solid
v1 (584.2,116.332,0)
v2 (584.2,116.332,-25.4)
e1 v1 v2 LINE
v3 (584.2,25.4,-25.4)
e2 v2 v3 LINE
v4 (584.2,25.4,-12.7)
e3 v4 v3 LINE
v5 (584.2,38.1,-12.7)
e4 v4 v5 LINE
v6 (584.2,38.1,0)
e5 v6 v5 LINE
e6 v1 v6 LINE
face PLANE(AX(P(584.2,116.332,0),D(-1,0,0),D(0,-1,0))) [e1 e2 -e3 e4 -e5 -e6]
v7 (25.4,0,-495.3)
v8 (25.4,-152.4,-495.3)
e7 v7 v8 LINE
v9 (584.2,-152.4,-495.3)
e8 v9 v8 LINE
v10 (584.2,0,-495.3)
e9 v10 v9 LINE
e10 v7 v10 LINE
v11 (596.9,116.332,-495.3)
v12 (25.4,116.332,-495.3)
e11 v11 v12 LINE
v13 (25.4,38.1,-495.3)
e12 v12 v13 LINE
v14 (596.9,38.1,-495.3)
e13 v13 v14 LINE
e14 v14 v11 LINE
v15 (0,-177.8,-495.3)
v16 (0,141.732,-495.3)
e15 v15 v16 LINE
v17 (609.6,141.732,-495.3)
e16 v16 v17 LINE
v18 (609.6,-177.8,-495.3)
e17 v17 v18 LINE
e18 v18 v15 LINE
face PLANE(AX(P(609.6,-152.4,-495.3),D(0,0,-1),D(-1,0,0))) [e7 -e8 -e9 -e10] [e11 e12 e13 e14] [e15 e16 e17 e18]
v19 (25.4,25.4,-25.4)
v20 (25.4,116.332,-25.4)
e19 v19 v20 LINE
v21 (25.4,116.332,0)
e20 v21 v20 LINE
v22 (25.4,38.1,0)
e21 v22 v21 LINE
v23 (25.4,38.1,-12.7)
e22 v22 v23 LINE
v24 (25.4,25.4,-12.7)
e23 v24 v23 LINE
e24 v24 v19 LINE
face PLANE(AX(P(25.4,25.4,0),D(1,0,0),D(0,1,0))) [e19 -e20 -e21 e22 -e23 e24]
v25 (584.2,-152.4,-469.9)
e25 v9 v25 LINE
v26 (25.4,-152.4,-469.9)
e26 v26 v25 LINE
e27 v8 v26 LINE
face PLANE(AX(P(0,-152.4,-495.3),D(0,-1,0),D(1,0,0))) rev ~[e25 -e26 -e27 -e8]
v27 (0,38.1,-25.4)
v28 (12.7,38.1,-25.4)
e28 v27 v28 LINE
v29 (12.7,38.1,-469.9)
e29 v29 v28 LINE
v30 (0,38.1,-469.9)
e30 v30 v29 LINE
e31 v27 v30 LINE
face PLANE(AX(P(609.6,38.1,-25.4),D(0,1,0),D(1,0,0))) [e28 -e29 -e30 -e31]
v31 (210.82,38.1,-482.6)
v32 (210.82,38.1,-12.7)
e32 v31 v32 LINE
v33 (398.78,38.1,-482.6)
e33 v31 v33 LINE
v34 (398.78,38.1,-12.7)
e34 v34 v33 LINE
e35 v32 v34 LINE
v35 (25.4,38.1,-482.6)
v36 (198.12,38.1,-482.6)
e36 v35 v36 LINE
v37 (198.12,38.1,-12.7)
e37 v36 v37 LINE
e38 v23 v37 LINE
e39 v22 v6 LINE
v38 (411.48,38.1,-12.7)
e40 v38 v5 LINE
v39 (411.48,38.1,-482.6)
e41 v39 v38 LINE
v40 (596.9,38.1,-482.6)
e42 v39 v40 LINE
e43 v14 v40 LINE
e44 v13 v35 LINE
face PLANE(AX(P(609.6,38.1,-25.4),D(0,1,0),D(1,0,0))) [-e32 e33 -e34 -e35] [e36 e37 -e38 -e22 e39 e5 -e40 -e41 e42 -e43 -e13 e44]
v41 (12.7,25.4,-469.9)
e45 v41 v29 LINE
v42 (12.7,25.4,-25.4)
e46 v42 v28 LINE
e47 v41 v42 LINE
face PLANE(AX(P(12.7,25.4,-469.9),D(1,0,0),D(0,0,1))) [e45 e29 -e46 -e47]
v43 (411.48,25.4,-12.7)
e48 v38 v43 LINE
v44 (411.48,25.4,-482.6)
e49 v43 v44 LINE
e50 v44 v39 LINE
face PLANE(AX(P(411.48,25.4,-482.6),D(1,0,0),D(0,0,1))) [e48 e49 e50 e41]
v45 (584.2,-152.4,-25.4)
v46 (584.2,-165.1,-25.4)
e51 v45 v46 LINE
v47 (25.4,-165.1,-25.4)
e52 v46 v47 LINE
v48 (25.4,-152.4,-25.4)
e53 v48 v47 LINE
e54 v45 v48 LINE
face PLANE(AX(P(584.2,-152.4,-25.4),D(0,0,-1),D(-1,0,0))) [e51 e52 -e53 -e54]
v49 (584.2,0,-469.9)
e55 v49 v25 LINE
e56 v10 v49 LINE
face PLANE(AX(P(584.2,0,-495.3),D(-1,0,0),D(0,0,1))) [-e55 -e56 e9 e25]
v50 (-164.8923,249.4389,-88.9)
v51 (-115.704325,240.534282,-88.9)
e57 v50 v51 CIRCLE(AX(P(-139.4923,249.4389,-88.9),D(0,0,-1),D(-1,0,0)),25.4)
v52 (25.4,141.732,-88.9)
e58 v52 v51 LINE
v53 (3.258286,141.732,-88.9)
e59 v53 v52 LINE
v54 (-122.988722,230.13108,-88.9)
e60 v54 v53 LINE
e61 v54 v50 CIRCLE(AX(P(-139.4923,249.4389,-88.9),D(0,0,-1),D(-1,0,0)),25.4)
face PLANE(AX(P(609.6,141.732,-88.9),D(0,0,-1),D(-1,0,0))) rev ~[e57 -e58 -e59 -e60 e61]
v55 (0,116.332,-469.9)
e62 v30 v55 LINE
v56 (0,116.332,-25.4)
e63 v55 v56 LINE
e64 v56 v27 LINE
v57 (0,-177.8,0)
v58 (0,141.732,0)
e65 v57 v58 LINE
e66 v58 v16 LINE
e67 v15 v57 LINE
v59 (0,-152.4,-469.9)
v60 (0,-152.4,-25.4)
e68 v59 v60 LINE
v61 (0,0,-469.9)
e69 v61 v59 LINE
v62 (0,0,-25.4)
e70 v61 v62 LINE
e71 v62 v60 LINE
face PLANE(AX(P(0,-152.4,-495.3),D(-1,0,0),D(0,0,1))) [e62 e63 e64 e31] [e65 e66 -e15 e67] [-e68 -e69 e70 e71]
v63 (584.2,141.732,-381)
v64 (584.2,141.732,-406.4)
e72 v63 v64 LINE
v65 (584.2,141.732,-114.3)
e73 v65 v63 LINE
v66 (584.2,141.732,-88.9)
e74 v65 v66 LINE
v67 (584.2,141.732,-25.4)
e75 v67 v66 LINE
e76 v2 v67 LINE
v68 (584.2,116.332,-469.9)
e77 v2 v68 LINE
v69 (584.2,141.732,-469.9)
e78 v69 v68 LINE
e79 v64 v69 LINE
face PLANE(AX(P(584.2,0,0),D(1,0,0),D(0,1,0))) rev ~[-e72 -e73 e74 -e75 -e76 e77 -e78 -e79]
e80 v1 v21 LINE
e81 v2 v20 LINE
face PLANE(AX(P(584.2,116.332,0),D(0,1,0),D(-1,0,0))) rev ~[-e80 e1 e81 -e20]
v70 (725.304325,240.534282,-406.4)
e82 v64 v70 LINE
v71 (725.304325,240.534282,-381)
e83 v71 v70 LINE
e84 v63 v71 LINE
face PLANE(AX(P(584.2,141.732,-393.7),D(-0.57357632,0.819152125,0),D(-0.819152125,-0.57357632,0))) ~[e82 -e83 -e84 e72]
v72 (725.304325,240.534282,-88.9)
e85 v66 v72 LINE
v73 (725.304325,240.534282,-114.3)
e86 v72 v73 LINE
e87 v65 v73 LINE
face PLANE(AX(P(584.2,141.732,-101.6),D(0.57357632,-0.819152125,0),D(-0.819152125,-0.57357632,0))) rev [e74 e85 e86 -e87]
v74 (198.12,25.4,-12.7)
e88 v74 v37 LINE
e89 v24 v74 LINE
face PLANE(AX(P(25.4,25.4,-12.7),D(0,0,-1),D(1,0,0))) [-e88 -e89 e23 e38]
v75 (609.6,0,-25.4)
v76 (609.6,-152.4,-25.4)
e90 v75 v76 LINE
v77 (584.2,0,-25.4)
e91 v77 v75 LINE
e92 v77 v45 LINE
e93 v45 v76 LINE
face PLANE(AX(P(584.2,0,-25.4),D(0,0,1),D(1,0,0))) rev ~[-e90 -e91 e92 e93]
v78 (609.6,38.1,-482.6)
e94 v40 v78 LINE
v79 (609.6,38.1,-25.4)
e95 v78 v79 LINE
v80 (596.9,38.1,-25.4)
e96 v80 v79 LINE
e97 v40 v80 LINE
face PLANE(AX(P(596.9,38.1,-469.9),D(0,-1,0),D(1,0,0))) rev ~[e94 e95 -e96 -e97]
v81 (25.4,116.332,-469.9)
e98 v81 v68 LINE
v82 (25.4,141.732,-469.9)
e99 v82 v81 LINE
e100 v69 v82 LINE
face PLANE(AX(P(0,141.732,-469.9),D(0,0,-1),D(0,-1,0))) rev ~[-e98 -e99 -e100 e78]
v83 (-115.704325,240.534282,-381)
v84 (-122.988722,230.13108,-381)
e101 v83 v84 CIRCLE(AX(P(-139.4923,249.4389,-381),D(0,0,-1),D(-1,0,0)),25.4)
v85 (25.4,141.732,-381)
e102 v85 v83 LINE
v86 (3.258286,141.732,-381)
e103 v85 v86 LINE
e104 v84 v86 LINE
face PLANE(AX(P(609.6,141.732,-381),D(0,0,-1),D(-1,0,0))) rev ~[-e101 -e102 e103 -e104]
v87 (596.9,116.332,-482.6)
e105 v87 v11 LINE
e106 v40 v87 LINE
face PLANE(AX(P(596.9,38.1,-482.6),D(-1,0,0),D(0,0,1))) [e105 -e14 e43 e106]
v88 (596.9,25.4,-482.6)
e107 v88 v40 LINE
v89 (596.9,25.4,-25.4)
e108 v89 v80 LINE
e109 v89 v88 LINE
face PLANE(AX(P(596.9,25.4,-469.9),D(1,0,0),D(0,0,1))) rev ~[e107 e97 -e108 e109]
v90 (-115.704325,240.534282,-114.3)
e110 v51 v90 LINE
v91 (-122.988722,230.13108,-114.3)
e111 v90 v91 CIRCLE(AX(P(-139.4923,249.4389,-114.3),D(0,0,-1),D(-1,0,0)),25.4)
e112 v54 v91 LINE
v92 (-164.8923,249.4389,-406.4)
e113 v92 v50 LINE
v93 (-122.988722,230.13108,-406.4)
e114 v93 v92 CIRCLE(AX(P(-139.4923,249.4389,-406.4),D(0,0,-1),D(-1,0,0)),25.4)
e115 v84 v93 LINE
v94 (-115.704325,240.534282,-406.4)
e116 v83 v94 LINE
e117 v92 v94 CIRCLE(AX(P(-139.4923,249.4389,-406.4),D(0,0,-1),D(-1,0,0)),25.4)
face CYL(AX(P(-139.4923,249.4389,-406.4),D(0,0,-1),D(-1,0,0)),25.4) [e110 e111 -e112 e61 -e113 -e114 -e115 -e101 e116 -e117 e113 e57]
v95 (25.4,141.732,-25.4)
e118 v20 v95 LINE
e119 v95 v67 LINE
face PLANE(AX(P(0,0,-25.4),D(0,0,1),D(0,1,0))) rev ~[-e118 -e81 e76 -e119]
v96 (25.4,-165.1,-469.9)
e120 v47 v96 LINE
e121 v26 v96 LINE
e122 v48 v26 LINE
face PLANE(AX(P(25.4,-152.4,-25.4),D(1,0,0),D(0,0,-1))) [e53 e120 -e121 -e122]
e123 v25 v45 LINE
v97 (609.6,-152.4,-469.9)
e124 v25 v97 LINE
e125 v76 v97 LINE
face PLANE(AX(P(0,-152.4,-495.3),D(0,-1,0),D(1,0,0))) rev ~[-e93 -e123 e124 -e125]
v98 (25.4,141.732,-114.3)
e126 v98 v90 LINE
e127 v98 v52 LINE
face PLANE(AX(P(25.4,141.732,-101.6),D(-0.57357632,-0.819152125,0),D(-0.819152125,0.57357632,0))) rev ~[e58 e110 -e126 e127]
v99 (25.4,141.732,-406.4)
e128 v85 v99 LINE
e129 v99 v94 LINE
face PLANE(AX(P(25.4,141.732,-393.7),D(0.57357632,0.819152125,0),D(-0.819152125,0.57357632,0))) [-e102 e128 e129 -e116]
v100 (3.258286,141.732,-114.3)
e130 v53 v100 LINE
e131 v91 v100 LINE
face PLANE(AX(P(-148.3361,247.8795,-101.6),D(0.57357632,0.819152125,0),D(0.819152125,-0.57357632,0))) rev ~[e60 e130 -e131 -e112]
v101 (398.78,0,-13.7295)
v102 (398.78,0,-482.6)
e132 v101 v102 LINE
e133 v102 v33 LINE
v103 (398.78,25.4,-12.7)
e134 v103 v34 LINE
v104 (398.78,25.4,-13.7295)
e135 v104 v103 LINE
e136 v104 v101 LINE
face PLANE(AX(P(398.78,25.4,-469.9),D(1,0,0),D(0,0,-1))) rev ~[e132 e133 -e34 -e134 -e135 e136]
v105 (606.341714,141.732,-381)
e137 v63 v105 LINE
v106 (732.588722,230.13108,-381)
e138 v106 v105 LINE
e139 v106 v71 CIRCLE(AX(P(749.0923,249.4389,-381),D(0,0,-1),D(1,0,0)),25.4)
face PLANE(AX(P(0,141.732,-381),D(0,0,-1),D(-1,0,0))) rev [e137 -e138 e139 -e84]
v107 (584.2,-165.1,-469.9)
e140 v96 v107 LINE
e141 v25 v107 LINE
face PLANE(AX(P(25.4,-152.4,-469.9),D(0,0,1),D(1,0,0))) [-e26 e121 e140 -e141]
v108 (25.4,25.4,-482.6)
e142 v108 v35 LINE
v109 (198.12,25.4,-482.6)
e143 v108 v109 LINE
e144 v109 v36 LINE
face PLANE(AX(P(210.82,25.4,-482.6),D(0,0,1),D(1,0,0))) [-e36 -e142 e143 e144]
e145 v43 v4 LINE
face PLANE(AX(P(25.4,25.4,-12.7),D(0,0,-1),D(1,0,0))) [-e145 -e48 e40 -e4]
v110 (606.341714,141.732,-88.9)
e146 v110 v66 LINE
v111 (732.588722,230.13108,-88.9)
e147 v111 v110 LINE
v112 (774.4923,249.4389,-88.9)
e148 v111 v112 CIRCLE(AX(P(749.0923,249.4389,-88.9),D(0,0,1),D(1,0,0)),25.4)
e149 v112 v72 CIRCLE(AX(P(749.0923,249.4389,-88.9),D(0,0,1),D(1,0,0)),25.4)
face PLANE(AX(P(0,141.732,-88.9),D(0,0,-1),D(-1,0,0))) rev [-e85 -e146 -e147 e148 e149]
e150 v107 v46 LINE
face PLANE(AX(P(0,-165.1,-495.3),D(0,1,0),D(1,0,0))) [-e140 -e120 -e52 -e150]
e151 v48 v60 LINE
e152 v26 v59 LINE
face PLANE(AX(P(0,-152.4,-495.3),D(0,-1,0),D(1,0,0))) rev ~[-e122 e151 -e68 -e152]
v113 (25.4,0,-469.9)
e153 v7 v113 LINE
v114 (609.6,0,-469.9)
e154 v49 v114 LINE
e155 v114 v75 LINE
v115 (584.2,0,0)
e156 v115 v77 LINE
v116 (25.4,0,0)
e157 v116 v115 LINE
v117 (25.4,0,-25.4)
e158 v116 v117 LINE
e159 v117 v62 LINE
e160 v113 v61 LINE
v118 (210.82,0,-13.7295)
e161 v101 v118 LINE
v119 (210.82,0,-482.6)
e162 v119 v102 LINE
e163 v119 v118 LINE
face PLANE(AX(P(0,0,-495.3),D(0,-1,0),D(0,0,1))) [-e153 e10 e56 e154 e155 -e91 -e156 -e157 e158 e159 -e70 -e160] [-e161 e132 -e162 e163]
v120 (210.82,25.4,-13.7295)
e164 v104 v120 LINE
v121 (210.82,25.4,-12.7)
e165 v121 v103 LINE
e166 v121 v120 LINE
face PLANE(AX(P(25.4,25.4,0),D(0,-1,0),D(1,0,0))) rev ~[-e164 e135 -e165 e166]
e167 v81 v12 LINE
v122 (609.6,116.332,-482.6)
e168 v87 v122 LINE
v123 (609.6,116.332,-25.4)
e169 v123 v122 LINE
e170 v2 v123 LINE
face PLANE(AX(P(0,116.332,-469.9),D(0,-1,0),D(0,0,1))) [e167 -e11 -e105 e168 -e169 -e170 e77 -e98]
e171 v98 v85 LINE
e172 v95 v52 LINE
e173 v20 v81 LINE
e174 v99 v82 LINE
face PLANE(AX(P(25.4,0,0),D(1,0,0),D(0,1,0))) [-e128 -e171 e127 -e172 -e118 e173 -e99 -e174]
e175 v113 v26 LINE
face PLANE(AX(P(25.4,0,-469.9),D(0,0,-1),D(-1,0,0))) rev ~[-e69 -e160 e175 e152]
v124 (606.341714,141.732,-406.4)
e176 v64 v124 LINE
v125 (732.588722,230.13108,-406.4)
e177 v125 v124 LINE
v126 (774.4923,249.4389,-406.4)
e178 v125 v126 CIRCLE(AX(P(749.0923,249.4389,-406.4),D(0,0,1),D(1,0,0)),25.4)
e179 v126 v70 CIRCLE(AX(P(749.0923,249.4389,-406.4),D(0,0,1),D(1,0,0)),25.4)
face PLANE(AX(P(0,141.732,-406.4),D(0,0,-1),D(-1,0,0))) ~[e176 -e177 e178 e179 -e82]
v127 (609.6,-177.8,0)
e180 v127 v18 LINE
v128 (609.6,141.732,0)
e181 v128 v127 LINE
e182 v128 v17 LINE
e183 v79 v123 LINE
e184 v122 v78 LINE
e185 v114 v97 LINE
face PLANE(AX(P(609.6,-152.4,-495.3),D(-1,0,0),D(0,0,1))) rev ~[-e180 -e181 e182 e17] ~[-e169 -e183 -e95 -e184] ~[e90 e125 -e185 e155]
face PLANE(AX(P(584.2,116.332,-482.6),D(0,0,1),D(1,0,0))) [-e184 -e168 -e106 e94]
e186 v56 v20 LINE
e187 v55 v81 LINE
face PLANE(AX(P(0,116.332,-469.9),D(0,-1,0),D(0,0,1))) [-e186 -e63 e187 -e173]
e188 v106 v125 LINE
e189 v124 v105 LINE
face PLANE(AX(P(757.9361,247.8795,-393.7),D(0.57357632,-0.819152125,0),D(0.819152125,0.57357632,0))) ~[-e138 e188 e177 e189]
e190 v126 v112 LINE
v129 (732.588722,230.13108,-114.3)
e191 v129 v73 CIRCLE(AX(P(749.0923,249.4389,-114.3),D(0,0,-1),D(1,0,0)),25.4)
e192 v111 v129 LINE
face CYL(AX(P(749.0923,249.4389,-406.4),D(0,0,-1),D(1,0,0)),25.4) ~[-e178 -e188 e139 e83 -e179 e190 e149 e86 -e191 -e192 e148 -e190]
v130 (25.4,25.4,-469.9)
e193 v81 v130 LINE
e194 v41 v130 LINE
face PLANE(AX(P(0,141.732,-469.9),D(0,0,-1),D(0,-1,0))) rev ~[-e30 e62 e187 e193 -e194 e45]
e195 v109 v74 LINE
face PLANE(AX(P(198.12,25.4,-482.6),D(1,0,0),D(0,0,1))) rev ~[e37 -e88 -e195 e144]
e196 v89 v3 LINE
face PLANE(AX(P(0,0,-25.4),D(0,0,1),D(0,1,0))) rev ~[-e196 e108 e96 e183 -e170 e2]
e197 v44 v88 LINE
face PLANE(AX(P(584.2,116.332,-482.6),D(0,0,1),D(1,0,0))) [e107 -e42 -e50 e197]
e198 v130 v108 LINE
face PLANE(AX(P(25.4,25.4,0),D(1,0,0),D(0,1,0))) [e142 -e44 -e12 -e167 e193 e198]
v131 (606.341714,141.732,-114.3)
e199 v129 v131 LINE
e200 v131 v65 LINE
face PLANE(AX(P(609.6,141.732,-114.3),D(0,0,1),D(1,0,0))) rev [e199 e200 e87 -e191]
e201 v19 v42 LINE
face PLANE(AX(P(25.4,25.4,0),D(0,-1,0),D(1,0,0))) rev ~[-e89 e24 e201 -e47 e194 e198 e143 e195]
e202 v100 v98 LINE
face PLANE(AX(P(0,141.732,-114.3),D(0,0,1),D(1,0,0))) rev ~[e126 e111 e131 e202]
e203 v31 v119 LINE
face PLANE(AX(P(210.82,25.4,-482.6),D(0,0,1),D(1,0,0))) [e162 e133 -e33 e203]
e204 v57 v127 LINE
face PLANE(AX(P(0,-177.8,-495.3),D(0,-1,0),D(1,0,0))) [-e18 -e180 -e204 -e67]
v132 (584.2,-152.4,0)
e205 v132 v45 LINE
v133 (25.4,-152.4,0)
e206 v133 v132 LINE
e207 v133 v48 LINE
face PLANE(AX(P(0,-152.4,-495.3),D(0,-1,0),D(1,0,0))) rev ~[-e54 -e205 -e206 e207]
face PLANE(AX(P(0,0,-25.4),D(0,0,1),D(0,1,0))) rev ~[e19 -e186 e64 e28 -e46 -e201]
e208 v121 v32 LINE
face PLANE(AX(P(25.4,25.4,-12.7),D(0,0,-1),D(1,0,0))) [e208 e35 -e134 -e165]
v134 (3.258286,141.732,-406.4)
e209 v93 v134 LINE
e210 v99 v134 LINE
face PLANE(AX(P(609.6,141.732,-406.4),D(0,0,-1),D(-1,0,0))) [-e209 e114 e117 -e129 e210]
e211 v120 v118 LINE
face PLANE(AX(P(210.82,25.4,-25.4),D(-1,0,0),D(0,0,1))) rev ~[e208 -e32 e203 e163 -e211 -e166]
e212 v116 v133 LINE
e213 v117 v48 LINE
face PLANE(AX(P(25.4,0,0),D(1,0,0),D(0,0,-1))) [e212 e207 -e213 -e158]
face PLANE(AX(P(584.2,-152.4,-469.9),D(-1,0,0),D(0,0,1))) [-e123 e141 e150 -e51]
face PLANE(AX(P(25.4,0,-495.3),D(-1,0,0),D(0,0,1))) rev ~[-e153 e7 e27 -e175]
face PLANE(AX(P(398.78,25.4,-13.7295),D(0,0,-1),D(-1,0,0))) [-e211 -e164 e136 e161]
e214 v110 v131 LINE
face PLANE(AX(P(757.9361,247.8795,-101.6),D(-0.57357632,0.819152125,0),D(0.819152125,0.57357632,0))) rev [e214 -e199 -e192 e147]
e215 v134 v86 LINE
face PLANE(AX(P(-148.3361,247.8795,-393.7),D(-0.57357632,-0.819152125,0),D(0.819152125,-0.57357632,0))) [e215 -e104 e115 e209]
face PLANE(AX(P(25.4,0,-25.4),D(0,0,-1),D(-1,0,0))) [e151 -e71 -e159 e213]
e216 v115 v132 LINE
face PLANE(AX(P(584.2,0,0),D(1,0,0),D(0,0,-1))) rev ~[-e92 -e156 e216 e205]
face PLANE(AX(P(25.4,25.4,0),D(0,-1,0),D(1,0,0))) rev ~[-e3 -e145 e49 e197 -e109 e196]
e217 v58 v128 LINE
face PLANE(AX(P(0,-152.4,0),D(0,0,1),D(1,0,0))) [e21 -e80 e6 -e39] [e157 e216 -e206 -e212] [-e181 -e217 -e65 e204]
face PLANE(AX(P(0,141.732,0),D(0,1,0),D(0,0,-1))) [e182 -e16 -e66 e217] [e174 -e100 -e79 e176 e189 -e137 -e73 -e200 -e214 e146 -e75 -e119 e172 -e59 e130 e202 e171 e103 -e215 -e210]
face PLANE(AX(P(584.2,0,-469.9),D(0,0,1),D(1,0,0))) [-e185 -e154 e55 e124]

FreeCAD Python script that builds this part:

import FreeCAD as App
import Part
import Sketcher

V = App.Vector
Q = App.Units.Quantity


def faces_at(feature, points):
    """Names of the faces that lie closest to the given points."""
    faces = feature.Shape.Faces
    near = lambda p: min(range(len(faces)), key=lambda i: faces[i].distToShape(Part.Vertex(*p))[0])
    return sorted({f"Face{near(p) + 1}" for p in points})

doc = App.newDocument("Part")
params = doc.addObject("Spreadsheet::Sheet", "Params")
for row, (alias, value) in enumerate([
    ("sketch1_height", "19.5 in"),
    ("sketch1_width", "5.58 in"),
    ("pad1_length", "24 in"),
    ("thickness_wall", "1 in"),
    ("sketch2_width", "3.58 in"),
    ("sketch2_height", "17.5 in"),
    ("sketch3_height", "3.58 in"),
    ("sketch3_width", "22 in"),
    ("sketch4_width", "22 in"),
    ("sketch4_width2", "24 in"),
    ("sketch4_height", "17.5 in"),
    ("sketch4_height2", "18.5 in"),
    ("pad2_length", "0.5 in"),
    ("sketch5_width", "1 in"),
    ("pad3_length", "6 in"),
    ("sketch6_width", "24 in"),
    ("sketch6_height", "19.5 in"),
    ("pad4_length", "1 in"),
    ("sketch7_width", "7.4 in"),
    ("pocket3_length", "1 in"),
    ("sketch8_width", "0.5 in"),
    ("sketch8_height", "18.5 in"),
    ("pad5_length", "0.5 in"),
    ("sketch9_width", "22 in"),
    ("sketch9_height", "17.5 in"),
    ("pocket4_length", "0.5 in"),
    ("sketch10_length", "8 in"),
    ("sketch10_length2", "0.5 in"),
    ("pad6_length", "1 in"),
    ("sketch11_length", "8 in"),
    ("sketch11_length2", "0.5 in"),
    ("pad7_length", "1 in"),
    ("sketch12_diameter", "2 in"),
    ("pad8_length", "12.5 in"),
    ("sketch13_width", "1 in"),
    ("sketch13_height", "3.08 in"),
    ("pocket5_length", "0.5 in"),
    ("sketch14_height", "0.5 in"),
    ("sketch14_width", "3.08 in"),
    ("pocket6_length", "0.5 in"),
], start=1):
    params.set(f"A{row}", alias)
    params.set(f"B{row}", "=" + value)
    params.setAlias(f"B{row}", alias)

body = doc.addObject("PartDesign::Body", "Body")

# Sketch on YZ plane
sketch1 = body.newObject("Sketcher::SketchObject", "Sketch")
sketch1.AttachmentSupport = (doc.getObject("YZ_Plane"), [""])
sketch1.MapMode = "FlatFace"
sketch1.addGeometry([
    Part.LineSegment(V(141.732, 0, 0), V(0, 0, 0)),
    Part.LineSegment(V(0, 0, 0), V(0, -495.3, 0)),
    Part.LineSegment(V(0, -495.3, 0), V(141.732, -495.3, 0)),
    Part.LineSegment(V(141.732, -495.3, 0), V(141.732, 0, 0)),
], False)
sketch1.addConstraint([
    Sketcher.Constraint("Coincident", 0, 2, 1, 1),
    Sketcher.Constraint("Coincident", 1, 2, 2, 1),
    Sketcher.Constraint("Coincident", 2, 2, 3, 1),
    Sketcher.Constraint("Coincident", 3, 2, 0, 1),
    Sketcher.Constraint("Horizontal", 0),
    Sketcher.Constraint("Vertical", 1),
    Sketcher.Constraint("Horizontal", 2),
    Sketcher.Constraint("Vertical", 3),
    Sketcher.Constraint("Coincident", 0, 2, -1, 1),
    Sketcher.Constraint("DistanceY", 1, 2, 1, 1, Q("19.5 in")),
    Sketcher.Constraint("DistanceX", 0, 2, 0, 1, Q("5.58 in")),
])
sketch1.setExpression("Constraints[9]", "Params.sketch1_height")
sketch1.setExpression("Constraints[10]", "Params.sketch1_width")
pad1 = body.newObject("PartDesign::Pad", "Pad")
pad1.Profile = sketch1
pad1.setExpression("Length", "Params.pad1_length")
doc.recompute()

thickness = body.newObject("PartDesign::Thickness", "Thickness")
thickness.Base = (pad1, faces_at(pad1, [(203.2, 141.732, -165.1)]))
thickness.setExpression("Value", "Params.thickness_wall")
thickness.Reversed = True
thickness.Join = "Intersection"

# Sketch on YZ plane
sketch2 = body.newObject("Sketcher::SketchObject", "Sketch001")
sketch2.AttachmentSupport = (doc.getObject("YZ_Plane"), [""])
sketch2.MapMode = "FlatFace"
sketch2.addGeometry([
    Part.LineSegment(V(25.4, -25.4, 0), V(116.332, -25.4, 0)),
    Part.LineSegment(V(116.332, -25.4, 0), V(116.332, -469.9, 0)),
    Part.LineSegment(V(116.332, -469.9, 0), V(25.4, -469.9, 0)),
    Part.LineSegment(V(25.4, -469.9, 0), V(25.4, -25.4, 0)),
], False)
sketch2.addConstraint([
    Sketcher.Constraint("Coincident", 0, 2, 1, 1),
    Sketcher.Constraint("Coincident", 1, 2, 2, 1),
    Sketcher.Constraint("Coincident", 2, 2, 3, 1),
    Sketcher.Constraint("Coincident", 3, 2, 0, 1),
    Sketcher.Constraint("Horizontal", 0),
    Sketcher.Constraint("Vertical", 1),
    Sketcher.Constraint("Horizontal", 2),
    Sketcher.Constraint("Vertical", 3),
    Sketcher.Constraint("DistanceX", 0, 1, 0, 2, Q("3.58 in")),
    Sketcher.Constraint("DistanceY", 1, 2, 1, 1, Q("17.5 in")),
    Sketcher.Constraint("DistanceY", 0, 2, -1, 1, Q("1 in")),
    Sketcher.Constraint("DistanceX", -1, 1, 2, 2, Q("1 in")),
])
sketch2.setExpression("Constraints[8]", "Params.sketch2_width")
sketch2.setExpression("Constraints[9]", "Params.sketch2_height")
pocket1 = body.newObject("PartDesign::Pocket", "Pocket")
pocket1.Profile = sketch2
pocket1.Type = "ThroughAll"
pocket1.Reversed = True

# Sketch on XY plane
sketch3 = body.newObject("Sketcher::SketchObject", "Sketch002")
sketch3.AttachmentSupport = (doc.getObject("XY_Plane"), [""])
sketch3.MapMode = "FlatFace"
sketch3.addGeometry([
    Part.LineSegment(V(25.4, 116.332, 0), V(25.4, 25.4, 0)),
    Part.LineSegment(V(25.4, 25.4, 0), V(584.2, 25.4, 0)),
    Part.LineSegment(V(584.2, 25.4, 0), V(584.2, 116.332, 0)),
    Part.LineSegment(V(584.2, 116.332, 0), V(25.4, 116.332, 0)),
], False)
sketch3.addConstraint([
    Sketcher.Constraint("Coincident", 0, 2, 1, 1),
    Sketcher.Constraint("Coincident", 1, 2, 2, 1),
    Sketcher.Constraint("Coincident", 2, 2, 3, 1),
    Sketcher.Constraint("Coincident", 3, 2, 0, 1),
    Sketcher.Constraint("Vertical", 0),
    Sketcher.Constraint("Horizontal", 1),
    Sketcher.Constraint("Vertical", 2),
    Sketcher.Constraint("Horizontal", 3),
    Sketcher.Constraint("DistanceY", 0, 2, 0, 1, Q("3.58 in")),
    Sketcher.Constraint("DistanceX", 1, 1, 1, 2, Q("22 in")),
    Sketcher.Constraint("DistanceX", -1, 1, 0, 2, Q("1 in")),
    Sketcher.Constraint("DistanceY", -1, 1, 0, 2, Q("1 in")),
])
sketch3.setExpression("Constraints[8]", "Params.sketch3_height")
sketch3.setExpression("Constraints[9]", "Params.sketch3_width")
pocket2 = body.newObject("PartDesign::Pocket", "Pocket001")
pocket2.Profile = sketch3
pocket2.Type = "ThroughAll"

# Sketch on XZ plane
sketch4 = body.newObject("Sketcher::SketchObject", "Sketch003")
sketch4.AttachmentSupport = (doc.getObject("XZ_Plane"), [""])
sketch4.MapMode = "FlatFace"
sketch4.AttachmentOffset = App.Placement(V(0, 0, -1 * 25.4), App.Rotation())
sketch4.addGeometry([
    Part.LineSegment(V(0, -25.4, 0), V(12.7, -25.4, 0)),  # 0
    Part.LineSegment(V(12.7, -25.4, 0), V(12.7, -469.9, 0)),  # 1
    Part.LineSegment(V(12.7, -469.9, 0), V(25.4, -469.9, 0)),  # 2
    Part.LineSegment(V(25.4, -469.9, 0), V(25.4, -482.6, 0)),  # 3
    Part.LineSegment(V(25.4, -482.6, 0), V(584.2, -482.6, 0)),  # 4
    Part.LineSegment(V(584.2, -482.6, 0), V(584.2, -469.9, 0)),  # 5
    Part.LineSegment(V(584.2, -469.9, 0), V(596.9, -469.9, 0)),  # 6
    Part.LineSegment(V(596.9, -469.9, 0), V(596.9, -25.4, 0)),  # 7
    Part.LineSegment(V(596.9, -25.4, 0), V(609.6, -25.4, 0)),  # 8
    Part.LineSegment(V(609.6, -25.4, 0), V(609.6, -495.3, 0)),  # 9
    Part.LineSegment(V(609.6, -495.3, 0), V(0, -495.3, 0)),  # 10
    Part.LineSegment(V(0, -495.3, 0), V(0, -25.4, 0)),  # 11
    Part.LineSegment(V(25.4, -12.7, 0), V(25.4, 0, 0)),  # 12
    Part.LineSegment(V(25.4, 0, 0), V(584.2, 0, 0)),  # 13
    Part.LineSegment(V(584.2, 0, 0), V(584.2, -12.7, 0)),  # 14
    Part.LineSegment(V(584.2, -12.7, 0), V(25.4, -12.7, 0)),  # 15
], False)
sketch4.addConstraint([
    Sketcher.Constraint("Coincident", 0, 2, 1, 1),
    Sketcher.Constraint("Coincident", 1, 2, 2, 1),
    Sketcher.Constraint("Coincident", 2, 2, 3, 1),
    Sketcher.Constraint("Coincident", 3, 2, 4, 1),
    Sketcher.Constraint("Coincident", 4, 2, 5, 1),
    Sketcher.Constraint("Coincident", 5, 2, 6, 1),
    Sketcher.Constraint("Coincident", 6, 2, 7, 1),
    Sketcher.Constraint("Coincident", 7, 2, 8, 1),
    Sketcher.Constraint("Coincident", 8, 2, 9, 1),
    Sketcher.Constraint("Coincident", 9, 2, 10, 1),
    Sketcher.Constraint("Coincident", 10, 2, 11, 1),
    Sketcher.Constraint("Coincident", 11, 2, 0, 1),
    Sketcher.Constraint("Coincident", 12, 2, 13, 1),
    Sketcher.Constraint("Coincident", 13, 2, 14, 1),
    Sketcher.Constraint("Coincident", 14, 2, 15, 1),
    Sketcher.Constraint("Coincident", 15, 2, 12, 1),
    Sketcher.Constraint("Horizontal", 0),
    Sketcher.Constraint("Vertical", 1),
    Sketcher.Constraint("Horizontal", 2),
    Sketcher.Constraint("Vertical", 3),
    Sketcher.Constraint("Horizontal", 4),
    Sketcher.Constraint("Vertical", 5),
    Sketcher.Constraint("Horizontal", 6),
    Sketcher.Constraint("Vertical", 7),
    Sketcher.Constraint("Horizontal", 8),
    Sketcher.Constraint("Vertical", 9),
    Sketcher.Constraint("Horizontal", 10),
    Sketcher.Constraint("Vertical", 11),
    Sketcher.Constraint("Vertical", 12),
    Sketcher.Constraint("Horizontal", 13),
    Sketcher.Constraint("Vertical", 14),
    Sketcher.Constraint("Horizontal", 15),
    Sketcher.Constraint("PointOnObject", 10, 2, -2),
    Sketcher.Constraint("PointOnObject", 12, 2, -1),
    Sketcher.Constraint("Horizontal", 2, 2, 5, 2),
    Sketcher.Constraint("Horizontal", 0, 2, 7, 2),
    Sketcher.Constraint("Vertical", 3, 2, 12, 2),
    Sketcher.Constraint("Vertical", 5, 2, 13, 2),
    Sketcher.Constraint("Equal", 0, 2),
    Sketcher.Constraint("Equal", 2, 6),
    Sketcher.Constraint("Equal", 6, 8),
    Sketcher.Constraint("Equal", 8, 3),
    Sketcher.Constraint("Equal", 5, 12),
    Sketcher.Constraint("DistanceX", 4, 1, 4, 2, Q("22 in")),
    Sketcher.Constraint("DistanceX", 10, 2, 10, 1, Q("24 in")),
    Sketcher.Constraint("DistanceY", 1, 2, 1, 1, Q("17.5 in")),
    Sketcher.Constraint("DistanceY", 9, 2, 9, 1, Q("18.5 in")),
    Sketcher.Constraint("DistanceY", 0, 2, -1, 1, Q("1 in")),
])
sketch4.setExpression("Constraints[43]", "Params.sketch4_width")
sketch4.setExpression("Constraints[44]", "Params.sketch4_width2")
sketch4.setExpression("Constraints[45]", "Params.sketch4_height")
sketch4.setExpression("Constraints[46]", "Params.sketch4_height2")
pad2 = body.newObject("PartDesign::Pad", "Pad001")
pad2.Profile = sketch4
pad2.setExpression("Length", "Params.pad2_length")
pad2.Reversed = True

# Sketch on XZ plane
sketch5 = body.newObject("Sketcher::SketchObject", "Sketch004")
sketch5.AttachmentSupport = (doc.getObject("XZ_Plane"), [""])
sketch5.MapMode = "FlatFace"
sketch5.addGeometry([
    Part.LineSegment(V(25.4, -495.3, 0), V(25.4, -469.9, 0)),  # 0
    Part.LineSegment(V(25.4, -469.9, 0), V(0, -469.9, 0)),  # 1
    Part.LineSegment(V(0, -469.9, 0), V(0, -495.3, 0)),  # 2
    Part.LineSegment(V(0, -495.3, 0), V(25.4, -495.3, 0)),  # 3
    Part.LineSegment(V(0, -25.4, 0), V(25.4, -25.4, 0)),  # 4
    Part.LineSegment(V(25.4, -25.4, 0), V(25.4, 0, 0)),  # 5
    Part.LineSegment(V(25.4, 0, 0), V(0, 0, 0)),  # 6
    Part.LineSegment(V(0, 0, 0), V(0, -25.4, 0)),  # 7
    Part.LineSegment(V(609.6, -495.3, 0), V(609.6, -469.9, 0)),  # 8
    Part.LineSegment(V(609.6, -469.9, 0), V(584.2, -469.9, 0)),  # 9
    Part.LineSegment(V(584.2, -469.9, 0), V(584.2, -495.3, 0)),  # 10
    Part.LineSegment(V(584.2, -495.3, 0), V(609.6, -495.3, 0)),  # 11
    Part.LineSegment(V(584.2, 0, 0), V(584.2, -25.4, 0)),  # 12
    Part.LineSegment(V(584.2, -25.4, 0), V(609.6, -25.4, 0)),  # 13
    Part.LineSegment(V(609.6, -25.4, 0), V(609.6, 0, 0)),  # 14
    Part.LineSegment(V(609.6, 0, 0), V(584.2, 0, 0)),  # 15
], False)
sketch5.addConstraint([
    Sketcher.Constraint("Coincident", 0, 2, 1, 1),
    Sketcher.Constraint("Coincident", 1, 2, 2, 1),
    Sketcher.Constraint("Coincident", 2, 2, 3, 1),
    Sketcher.Constraint("Coincident", 3, 2, 0, 1),
    Sketcher.Constraint("Coincident", 4, 2, 5, 1),
    Sketcher.Constraint("Coincident", 5, 2, 6, 1),
    Sketcher.Constraint("Coincident", 6, 2, 7, 1),
    Sketcher.Constraint("Coincident", 7, 2, 4, 1),
    Sketcher.Constraint("Coincident", 8, 2, 9, 1),
    Sketcher.Constraint("Coincident", 9, 2, 10, 1),
    Sketcher.Constraint("Coincident", 10, 2, 11, 1),
    Sketcher.Constraint("Coincident", 11, 2, 8, 1),
    Sketcher.Constraint("Coincident", 12, 2, 13, 1),
    Sketcher.Constraint("Coincident", 13, 2, 14, 1),
    Sketcher.Constraint("Coincident", 14, 2, 15, 1),
    Sketcher.Constraint("Coincident", 15, 2, 12, 1),
    Sketcher.Constraint("Vertical", 0),
    Sketcher.Constraint("Horizontal", 1),
    Sketcher.Constraint("Vertical", 2),
    Sketcher.Constraint("Horizontal", 3),
    Sketcher.Constraint("Horizontal", 4),
    Sketcher.Constraint("Vertical", 5),
    Sketcher.Constraint("Horizontal", 6),
    Sketcher.Constraint("Vertical", 7),
    Sketcher.Constraint("Vertical", 8),
    Sketcher.Constraint("Horizontal", 9),
    Sketcher.Constraint("Vertical", 10),
    Sketcher.Constraint("Horizontal", 11),
    Sketcher.Constraint("Vertical", 12),
    Sketcher.Constraint("Horizontal", 13),
    Sketcher.Constraint("Vertical", 14),
    Sketcher.Constraint("Horizontal", 15),
    Sketcher.Constraint("Coincident", 6, 2, -1, 1),
    Sketcher.Constraint("PointOnObject", 1, 2, -2),
    Sketcher.Constraint("PointOnObject", 14, 2, -1),
    Sketcher.Constraint("Horizontal", 1, 2, 8, 2),
    Sketcher.Constraint("Horizontal", 3, 2, 10, 2),
    Sketcher.Constraint("Horizontal", 7, 2, 12, 2),
    Sketcher.Constraint("Vertical", 3, 2, 4, 2),
    Sketcher.Constraint("Vertical", 10, 2, 12, 2),
    Sketcher.Constraint("Vertical", 11, 2, 13, 2),
    Sketcher.Constraint("Equal", 6, 9),
    Sketcher.Constraint("Equal", 15, 0),
    Sketcher.Constraint("Equal", 2, 5),
    Sketcher.Constraint("DistanceX", 1, 2, 1, 1, Q("1 in")),
    Sketcher.Constraint("DistanceX", -1, 1, 8, 2, Q("24 in")),
    Sketcher.Constraint("DistanceY", 0, 2, -1, 1, Q("18.5 in")),
])
sketch5.setExpression("Constraints[44]", "Params.sketch5_width")
pad3 = body.newObject("PartDesign::Pad", "Pad002")
pad3.Profile = sketch5
pad3.setExpression("Length", "Params.pad3_length")

# Sketch on XZ plane
sketch6 = body.newObject("Sketcher::SketchObject", "Sketch005")
sketch6.AttachmentSupport = (doc.getObject("XZ_Plane"), [""])
sketch6.MapMode = "FlatFace"
sketch6.AttachmentOffset = App.Placement(V(0, 0, 6 * 25.4), App.Rotation())
sketch6.addGeometry([
    Part.LineSegment(V(0, -495.3, 0), V(609.6, -495.3, 0)),
    Part.LineSegment(V(609.6, -495.3, 0), V(609.6, 0, 0)),
    Part.LineSegment(V(609.6, 0, 0), V(0, 0, 0)),
    Part.LineSegment(V(0, 0, 0), V(0, -495.3, 0)),
], False)
sketch6.addConstraint([
    Sketcher.Constraint("Coincident", 0, 2, 1, 1),
    Sketcher.Constraint("Coincident", 1, 2, 2, 1),
    Sketcher.Constraint("Coincident", 2, 2, 3, 1),
    Sketcher.Constraint("Coincident", 3, 2, 0, 1),
    Sketcher.Constraint("Horizontal", 0),
    Sketcher.Constraint("Vertical", 1),
    Sketcher.Constraint("Horizontal", 2),
    Sketcher.Constraint("Vertical", 3),
    Sketcher.Constraint("Coincident", 2, 2, -1, 1),
    Sketcher.Constraint("DistanceX", 0, 1, 0, 2, Q("24 in")),
    Sketcher.Constraint("DistanceY", 1, 1, 1, 2, Q("19.5 in")),
])
sketch6.setExpression("Constraints[9]", "Params.sketch6_width")
sketch6.setExpression("Constraints[10]", "Params.sketch6_height")
pad4 = body.newObject("PartDesign::Pad", "Pad003")
pad4.Profile = sketch6
pad4.setExpression("Length", "Params.pad4_length")

# Sketch on XZ plane
sketch7 = body.newObject("Sketcher::SketchObject", "Sketch006")
sketch7.AttachmentSupport = (doc.getObject("XZ_Plane"), [""])
sketch7.MapMode = "FlatFace"
sketch7.AttachmentOffset = App.Placement(V(0, 0, -1 * 25.4), App.Rotation())
sketch7.addGeometry([
    Part.LineSegment(V(210.82, -482.6, 0), V(210.82, -13.7295, 0)),
    Part.LineSegment(V(210.82, -13.7295, 0), V(398.78, -13.7295, 0)),
    Part.LineSegment(V(398.78, -13.7295, 0), V(398.78, -482.6, 0)),
    Part.LineSegment(V(398.78, -482.6, 0), V(210.82, -482.6, 0)),
], False)
sketch7.addConstraint([
    Sketcher.Constraint("Coincident", 0, 2, 1, 1),
    Sketcher.Constraint("Coincident", 1, 2, 2, 1),
    Sketcher.Constraint("Coincident", 2, 2, 3, 1),
    Sketcher.Constraint("Coincident", 3, 2, 0, 1),
    Sketcher.Constraint("Vertical", 0),
    Sketcher.Constraint("Horizontal", 1),
    Sketcher.Constraint("Vertical", 2),
    Sketcher.Constraint("Horizontal", 3),
    Sketcher.Constraint("DistanceX", 1, 1, 1, 2, Q("7.4 in")),
    Sketcher.Constraint("DistanceY", 2, 2, -1, 1, Q("19 in")),
    Sketcher.Constraint("DistanceX", -1, 1, 0, 2, Q("8.3 in")),
    Sketcher.Constraint("DistanceY", 0, 1, 0, 2, Q("468.8705 mm")),
])
sketch7.setExpression("Constraints[8]", "Params.sketch7_width")
pocket3 = body.newObject("PartDesign::Pocket", "Pocket002")
pocket3.Profile = sketch7
pocket3.setExpression("Length", "Params.pocket3_length")
pocket3.Reversed = True

# Sketch on XZ plane
sketch8 = body.newObject("Sketcher::SketchObject", "Sketch007")
sketch8.AttachmentSupport = (doc.getObject("XZ_Plane"), [""])
sketch8.MapMode = "FlatFace"
sketch8.AttachmentOffset = App.Placement(V(0, 0, -1 * 25.4), App.Rotation())
sketch8.addGeometry([
    Part.LineSegment(V(210.82, -12.7, 0), V(210.82, -482.6, 0)),  # 0
    Part.LineSegment(V(210.82, -482.6, 0), V(198.12, -482.6, 0)),  # 1
    Part.LineSegment(V(198.12, -482.6, 0), V(198.12, -12.7, 0)),  # 2
    Part.LineSegment(V(198.12, -12.7, 0), V(210.82, -12.7, 0)),  # 3
    Part.LineSegment(V(411.48, -482.6, 0), V(398.78, -482.6, 0)),  # 4
    Part.LineSegment(V(398.78, -482.6, 0), V(398.78, -6.9245, 0)),  # 5
    Part.LineSegment(V(398.78, -6.9245, 0), V(411.48, -6.9245, 0)),  # 6
    Part.LineSegment(V(411.48, -6.9245, 0), V(411.48, -482.6, 0)),  # 7
], False)
sketch8.addConstraint([
    Sketcher.Constraint("Coincident", 0, 2, 1, 1),
    Sketcher.Constraint("Coincident", 1, 2, 2, 1),
    Sketcher.Constraint("Coincident", 2, 2, 3, 1),
    Sketcher.Constraint("Coincident", 3, 2, 0, 1),
    Sketcher.Constraint("Coincident", 4, 2, 5, 1),
    Sketcher.Constraint("Coincident", 5, 2, 6, 1),
    Sketcher.Constraint("Coincident", 6, 2, 7, 1),
    Sketcher.Constraint("Coincident", 7, 2, 4, 1),
    Sketcher.Constraint("Vertical", 0),
    Sketcher.Constraint("Horizontal", 1),
    Sketcher.Constraint("Vertical", 2),
    Sketcher.Constraint("Horizontal", 3),
    Sketcher.Constraint("Horizontal", 4),
    Sketcher.Constraint("Vertical", 5),
    Sketcher.Constraint("Horizontal", 6),
    Sketcher.Constraint("Vertical", 7),
    Sketcher.Constraint("Horizontal", 1, 2, 4, 2),
    Sketcher.Constraint("Equal", 3, 4),
    Sketcher.Constraint("DistanceX", 1, 2, 1, 1, Q("0.5 in")),
    Sketcher.Constraint("DistanceY", 2, 2, -1, 1, Q("0.5 in")),
    Sketcher.Constraint("DistanceY", 0, 2, 0, 1, Q("18.5 in")),
    Sketcher.Constraint("DistanceX", -1, 1, 0, 2, Q("8.3 in")),
    Sketcher.Constraint("DistanceX", -1, 1, 4, 2, Q("15.7 in")),
    Sketcher.Constraint("DistanceY", 5, 1, 5, 2, Q("475.6755 mm")),
])
sketch8.setExpression("Constraints[18]", "Params.sketch8_width")
sketch8.setExpression("Constraints[20]", "Params.sketch8_height")
pad5 = body.newObject("PartDesign::Pad", "Pad004")
pad5.Profile = sketch8
pad5.setExpression("Length", "Params.pad5_length")
pad5.Reversed = True

# Sketch on XZ plane
sketch9 = body.newObject("Sketcher::SketchObject", "Sketch008")
sketch9.AttachmentSupport = (doc.getObject("XZ_Plane"), [""])
sketch9.MapMode = "FlatFace"
sketch9.AttachmentOffset = App.Placement(V(0, 0, 6 * 25.4), App.Rotation())
sketch9.addGeometry([
    Part.LineSegment(V(584.2, -25.4, 0), V(584.2, -469.9, 0)),
    Part.LineSegment(V(584.2, -469.9, 0), V(25.4, -469.9, 0)),
    Part.LineSegment(V(25.4, -469.9, 0), V(25.4, -25.4, 0)),
    Part.LineSegment(V(25.4, -25.4, 0), V(584.2, -25.4, 0)),
], False)
sketch9.addConstraint([
    Sketcher.Constraint("Coincident", 0, 2, 1, 1),
    Sketcher.Constraint("Coincident", 1, 2, 2, 1),
    Sketcher.Constraint("Coincident", 2, 2, 3, 1),
    Sketcher.Constraint("Coincident", 3, 2, 0, 1),
    Sketcher.Constraint("Vertical", 0),
    Sketcher.Constraint("Horizontal", 1),
    Sketcher.Constraint("Vertical", 2),
    Sketcher.Constraint("Horizontal", 3),
    Sketcher.Constraint("DistanceX", -1, 1, 1, 2, Q("1 in")),
    Sketcher.Constraint("DistanceY", 2, 2, -1, 1, Q("1 in")),
    Sketcher.Constraint("DistanceX", 1, 2, 1, 1, Q("22 in")),
    Sketcher.Constraint("DistanceY", 0, 2, 0, 1, Q("17.5 in")),
])
sketch9.setExpression("Constraints[10]", "Params.sketch9_width")
sketch9.setExpression("Constraints[11]", "Params.sketch9_height")
pocket4 = body.newObject("PartDesign::Pocket", "Pocket003")
pocket4.Profile = sketch9
pocket4.setExpression("Length", "Params.pocket4_length")
pocket4.Reversed = True

# Sketch on XY plane
sketch10 = body.newObject("Sketcher::SketchObject", "Sketch009")
sketch10.AttachmentSupport = (doc.getObject("XY_Plane"), [""])
sketch10.MapMode = "FlatFace"
sketch10.AttachmentOffset = App.Placement(V(0, 0, -15.5 * 25.4), App.Rotation())
sketch10.addGeometry([
    Part.LineSegment(V(-141.0517, 258.2827, 0), V(25.4, 141.732, 0)),
    Part.LineSegment(V(25.4, 141.732, 0), V(18.1156, 131.3288, 0)),
    Part.LineSegment(V(18.1156, 131.3288, 0), V(-148.3361, 247.8795, 0)),
    Part.LineSegment(V(-148.3361, 247.8795, 0), V(-141.0517, 258.2827, 0)),
], False)
sketch10.addConstraint([
    Sketcher.Constraint("Coincident", 0, 2, 1, 1),
    Sketcher.Constraint("Coincident", 1, 2, 2, 1),
    Sketcher.Constraint("Coincident", 2, 2, 3, 1),
    Sketcher.Constraint("Coincident", 3, 2, 0, 1),
    Sketcher.Constraint("Perpendicular", 0, 1),
    Sketcher.Constraint("Perpendicular", 1, 2),
    Sketcher.Constraint("Perpendicular", 2, 3),
    Sketcher.Constraint("Distance", 0, Q("8 in")),
    Sketcher.Constraint("DistanceX", -1, 1, 0, 2, Q("1 in")),
    Sketcher.Constraint("Angle", 0, Q("-35 deg")),
    Sketcher.Constraint("Distance", 1, Q("0.5 in")),
    Sketcher.Constraint("DistanceY", -1, 1, 0, 2, Q("5.58 in")),
])
sketch10.setExpression("Constraints[7]", "Params.sketch10_length")
sketch10.setExpression("Constraints[10]", "Params.sketch10_length2")
pad6 = body.newObject("PartDesign::Pad", "Pad005")
pad6.Profile = sketch10
pad6.setExpression("Length", "Params.pad6_length")
pad6.Midplane = True

# Sketch on XY plane
sketch11 = body.newObject("Sketcher::SketchObject", "Sketch010")
sketch11.AttachmentSupport = (doc.getObject("XY_Plane"), [""])
sketch11.MapMode = "FlatFace"
sketch11.AttachmentOffset = App.Placement(V(0, 0, -4 * 25.4), App.Rotation())
sketch11.addGeometry([
    Part.LineSegment(V(-148.3361, 247.8795, 0), V(18.1156, 131.3288, 0)),
    Part.LineSegment(V(18.115575, 131.328817, 0), V(25.4, 141.732, 0)),
    Part.LineSegment(V(25.4, 141.732, 0), V(-141.0517, 258.2827, 0)),
    Part.LineSegment(V(-141.0517, 258.2827, 0), V(-148.3361, 247.8795, 0)),
], False)
sketch11.addConstraint([
    Sketcher.Constraint("Coincident", 0, 2, 1, 1),
    Sketcher.Constraint("Coincident", 1, 2, 2, 1),
    Sketcher.Constraint("Coincident", 2, 2, 3, 1),
    Sketcher.Constraint("Coincident", 3, 2, 0, 1),
    Sketcher.Constraint("Perpendicular", 0, 1),
    Sketcher.Constraint("Perpendicular", 1, 2),
    Sketcher.Constraint("Perpendicular", 2, 3),
    Sketcher.Constraint("Distance", 0, Q("8 in")),
    Sketcher.Constraint("Angle", 2, Q("145 deg")),
    Sketcher.Constraint("Distance", 1, Q("0.5 in")),
    Sketcher.Constraint("DistanceX", -1, 1, 1, 2, Q("1 in")),
    Sketcher.Constraint("DistanceY", -1, 1, 1, 2, Q("5.58 in")),
])
sketch11.setExpression("Constraints[7]", "Params.sketch11_length")
sketch11.setExpression("Constraints[9]", "Params.sketch11_length2")
pad7 = body.newObject("PartDesign::Pad", "Pad006")
pad7.Profile = sketch11
pad7.setExpression("Length", "Params.pad7_length")
pad7.Midplane = True

# Sketch on XY plane
sketch12 = body.newObject("Sketcher::SketchObject", "Sketch011")
sketch12.AttachmentSupport = (doc.getObject("XY_Plane"), [""])
sketch12.MapMode = "FlatFace"
sketch12.AttachmentOffset = App.Placement(V(0, 0, -16 * 25.4), App.Rotation())
sketch12.addGeometry(Part.Circle(V(-139.4923, 249.4389, 0), V(0, 0, 1), 25.4), False)
sketch12.addConstraint([
    Sketcher.Constraint("Diameter", 0, Q("2 in")),
    Sketcher.Constraint("DistanceX", 0, 3, -1, 1, Q("139.4923 mm")),
    Sketcher.Constraint("DistanceY", -1, 1, 0, 3, Q("249.439 mm")),
])
sketch12.setExpression("Constraints[0]", "Params.sketch12_diameter")
pad8 = body.newObject("PartDesign::Pad", "Pad007")
pad8.Profile = sketch12
pad8.setExpression("Length", "Params.pad8_length")
doc.recompute()

datumplane = body.newObject("PartDesign::Plane", "DatumPlane")
datumplane.AttachmentSupport = (doc.getObject("YZ_Plane"), [""])
datumplane.MapMode = "FlatFace"
datumplane.AttachmentOffset = App.Placement(V(0, 0, 12 * 25.4), App.Rotation())
mirrored = body.newObject("PartDesign::Mirrored", "Mirrored")
mirrored.Originals = [pad8, pad7, pad6]
mirrored.MirrorPlane = (datumplane, [""])
body.Tip = mirrored

# Sketch on XY plane
sketch13 = body.newObject("Sketcher::SketchObject", "Sketch012")
sketch13.AttachmentSupport = (doc.getObject("XY_Plane"), [""])
sketch13.MapMode = "FlatFace"
sketch13.AttachmentOffset = App.Placement(V(0, 0, -18.5 * 25.4), App.Rotation())
sketch13.addGeometry([
    Part.LineSegment(V(596.9, 25.4, 0), V(596.9, 38.1, 0)),  # 0
    Part.LineSegment(V(596.9, 38.1, 0), V(609.6, 38.1, 0)),  # 1
    Part.LineSegment(V(609.6, 38.1, 0), V(609.6, 116.332, 0)),  # 2
    Part.LineSegment(V(609.6, 116.332, 0), V(584.2, 116.332, 0)),  # 3
    Part.LineSegment(V(584.2, 116.332, 0), V(584.2, 25.4, 0)),  # 4
    Part.LineSegment(V(584.2, 25.4, 0), V(596.9, 25.4, 0)),  # 5
], False)
sketch13.addConstraint([
    Sketcher.Constraint("Coincident", 0, 2, 1, 1),
    Sketcher.Constraint("Coincident", 1, 2, 2, 1),
    Sketcher.Constraint("Coincident", 2, 2, 3, 1),
    Sketcher.Constraint("Coincident", 3, 2, 4, 1),
    Sketcher.Constraint("Coincident", 4, 2, 5, 1),
    Sketcher.Constraint("Coincident", 5, 2, 0, 1),
    Sketcher.Constraint("Vertical", 0),
    Sketcher.Constraint("Horizontal", 1),
    Sketcher.Constraint("Vertical", 2),
    Sketcher.Constraint("Horizontal", 3),
    Sketcher.Constraint("Vertical", 4),
    Sketcher.Constraint("Horizontal", 5),
    Sketcher.Constraint("Equal", 1, 5),
    Sketcher.Constraint("Equal", 5, 0),
    Sketcher.Constraint("DistanceX", 3, 2, 3, 1, Q("1 in")),
    Sketcher.Constraint("DistanceX", -1, 1, 1, 2, Q("24 in")),
    Sketcher.Constraint("DistanceY", -1, 1, 4, 2, Q("1 in")),
    Sketcher.Constraint("DistanceY", 2, 1, 2, 2, Q("3.08 in")),
])
sketch13.setExpression("Constraints[14]", "Params.sketch13_width")
sketch13.setExpression("Constraints[17]", "Params.sketch13_height")
pocket5 = body.newObject("PartDesign::Pocket", "Pocket004")
pocket5.Profile = sketch13
pocket5.setExpression("Length", "Params.pocket5_length")

# Sketch on YZ plane
sketch14 = body.newObject("Sketcher::SketchObject", "Sketch013")
sketch14.AttachmentSupport = (doc.getObject("YZ_Plane"), [""])
sketch14.MapMode = "FlatFace"
sketch14.AttachmentOffset = App.Placement(V(0, 0, 23 * 25.4), App.Rotation())
sketch14.addGeometry([
    Part.LineSegment(V(38.1, -495.3, 0), V(38.1, -482.6, 0)),
    Part.LineSegment(V(38.1, -482.6, 0), V(116.332, -482.6, 0)),
    Part.LineSegment(V(116.332, -482.6, 0), V(116.332, -495.3, 0)),
    Part.LineSegment(V(116.332, -495.3, 0), V(38.1, -495.3, 0)),
], False)
sketch14.addConstraint([
    Sketcher.Constraint("Coincident", 0, 2, 1, 1),
    Sketcher.Constraint("Coincident", 1, 2, 2, 1),
    Sketcher.Constraint("Coincident", 2, 2, 3, 1),
    Sketcher.Constraint("Coincident", 3, 2, 0, 1),
    Sketcher.Constraint("Vertical", 0),
    Sketcher.Constraint("Horizontal", 1),
    Sketcher.Constraint("Vertical", 2),
    Sketcher.Constraint("Horizontal", 3),
    Sketcher.Constraint("DistanceY", 0, 1, 0, 2, Q("0.5 in")),
    Sketcher.Constraint("DistanceY", 0, 2, -1, 1, Q("19 in")),
    Sketcher.Constraint("DistanceX", 1, 1, 1, 2, Q("3.08 in")),
    Sketcher.Constraint("DistanceX", -1, 1, 0, 2, Q("1.5 in")),
])
sketch14.setExpression("Constraints[8]", "Params.sketch14_height")
sketch14.setExpression("Constraints[10]", "Params.sketch14_width")
pocket6 = body.newObject("PartDesign::Pocket", "Pocket005")
pocket6.Profile = sketch14
pocket6.setExpression("Length", "Params.pocket6_length")
pocket6.Reversed = True

doc.recompute()
